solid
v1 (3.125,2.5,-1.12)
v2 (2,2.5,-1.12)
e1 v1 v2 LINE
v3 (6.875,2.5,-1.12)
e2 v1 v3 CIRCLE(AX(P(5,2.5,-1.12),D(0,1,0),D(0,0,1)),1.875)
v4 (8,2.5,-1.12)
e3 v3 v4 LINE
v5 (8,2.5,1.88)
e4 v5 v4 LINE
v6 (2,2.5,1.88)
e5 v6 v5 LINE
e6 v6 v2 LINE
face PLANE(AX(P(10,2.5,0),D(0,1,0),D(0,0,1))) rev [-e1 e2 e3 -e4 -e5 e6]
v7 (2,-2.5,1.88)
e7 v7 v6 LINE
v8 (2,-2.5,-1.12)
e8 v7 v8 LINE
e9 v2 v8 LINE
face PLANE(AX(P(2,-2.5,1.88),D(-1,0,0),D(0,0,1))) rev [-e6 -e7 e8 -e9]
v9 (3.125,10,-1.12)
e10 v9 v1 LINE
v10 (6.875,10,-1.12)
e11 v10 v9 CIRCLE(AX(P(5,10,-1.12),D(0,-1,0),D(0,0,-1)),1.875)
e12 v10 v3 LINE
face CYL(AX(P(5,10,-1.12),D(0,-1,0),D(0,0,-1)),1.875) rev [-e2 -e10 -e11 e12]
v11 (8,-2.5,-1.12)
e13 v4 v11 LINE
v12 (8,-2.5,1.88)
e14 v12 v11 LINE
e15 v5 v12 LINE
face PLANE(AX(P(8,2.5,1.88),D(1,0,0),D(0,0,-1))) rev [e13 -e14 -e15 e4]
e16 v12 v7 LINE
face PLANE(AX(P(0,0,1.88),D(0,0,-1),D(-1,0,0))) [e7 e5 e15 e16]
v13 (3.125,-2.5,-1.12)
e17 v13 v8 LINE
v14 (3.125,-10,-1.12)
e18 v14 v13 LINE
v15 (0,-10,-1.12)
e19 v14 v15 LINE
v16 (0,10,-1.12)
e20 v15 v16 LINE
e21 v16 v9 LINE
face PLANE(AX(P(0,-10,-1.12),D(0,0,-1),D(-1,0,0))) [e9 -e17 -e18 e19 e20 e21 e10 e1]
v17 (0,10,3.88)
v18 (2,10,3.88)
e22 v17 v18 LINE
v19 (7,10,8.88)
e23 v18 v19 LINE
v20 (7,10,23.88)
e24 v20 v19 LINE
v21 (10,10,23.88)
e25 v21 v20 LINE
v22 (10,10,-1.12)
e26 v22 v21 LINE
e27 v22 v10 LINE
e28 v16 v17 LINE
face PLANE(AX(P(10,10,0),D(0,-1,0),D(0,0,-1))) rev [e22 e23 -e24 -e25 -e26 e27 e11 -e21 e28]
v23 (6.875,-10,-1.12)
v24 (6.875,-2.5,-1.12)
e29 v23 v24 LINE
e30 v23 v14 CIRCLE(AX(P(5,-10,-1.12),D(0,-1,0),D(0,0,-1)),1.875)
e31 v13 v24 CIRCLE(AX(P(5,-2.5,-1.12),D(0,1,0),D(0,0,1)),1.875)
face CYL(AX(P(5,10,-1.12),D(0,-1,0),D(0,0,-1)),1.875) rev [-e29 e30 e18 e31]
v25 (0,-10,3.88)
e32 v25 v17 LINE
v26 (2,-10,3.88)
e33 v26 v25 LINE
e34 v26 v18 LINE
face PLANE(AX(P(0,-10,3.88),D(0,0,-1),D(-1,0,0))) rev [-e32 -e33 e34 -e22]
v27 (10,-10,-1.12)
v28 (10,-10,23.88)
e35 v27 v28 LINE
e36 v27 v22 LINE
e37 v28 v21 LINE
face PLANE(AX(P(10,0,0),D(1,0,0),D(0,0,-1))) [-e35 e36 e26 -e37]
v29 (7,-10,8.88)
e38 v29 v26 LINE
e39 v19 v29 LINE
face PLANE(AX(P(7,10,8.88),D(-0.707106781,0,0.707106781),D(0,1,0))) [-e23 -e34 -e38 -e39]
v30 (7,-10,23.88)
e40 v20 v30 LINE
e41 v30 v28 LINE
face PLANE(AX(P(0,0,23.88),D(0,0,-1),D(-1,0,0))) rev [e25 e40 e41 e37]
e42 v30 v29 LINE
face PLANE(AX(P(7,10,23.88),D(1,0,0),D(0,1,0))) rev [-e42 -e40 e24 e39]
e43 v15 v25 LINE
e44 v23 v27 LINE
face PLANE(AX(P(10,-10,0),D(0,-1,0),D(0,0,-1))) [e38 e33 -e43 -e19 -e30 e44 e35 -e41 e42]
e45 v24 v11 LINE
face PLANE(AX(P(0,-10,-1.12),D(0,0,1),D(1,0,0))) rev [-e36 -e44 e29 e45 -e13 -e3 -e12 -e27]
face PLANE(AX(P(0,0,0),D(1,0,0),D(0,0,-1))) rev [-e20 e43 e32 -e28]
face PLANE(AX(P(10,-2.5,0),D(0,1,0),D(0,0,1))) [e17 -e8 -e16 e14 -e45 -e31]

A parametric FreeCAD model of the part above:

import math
import FreeCAD as App
import Part
import Sketcher

V = App.Vector
Q = App.Units.Quantity


def edges_at(feature, points):
    """Names of the edges that pass closest to the given points."""
    edges = feature.Shape.Edges
    near = lambda p: min(range(len(edges)), key=lambda i: edges[i].distToShape(Part.Vertex(*p))[0])
    return sorted({f"Edge{near(p) + 1}" for p in points})


def add_polygon(sketch, points):
    """Adds a closed chain of lines whose ends are joined by coincident constraints."""
    first, n = sketch.GeometryCount, len(points)
    for a, b in zip(points, points[1:] + points[:1]):
        sketch.addGeometry(Part.LineSegment(App.Vector(*a, 0), App.Vector(*b, 0)), False)
    for i in range(n):
        sketch.addConstraint(Sketcher.Constraint("Coincident", first + i, 2, first + (i + 1) % n, 1))

doc = App.newDocument("Part")
params = doc.addObject("Spreadsheet::Sheet", "Params")
for row, (alias, value) in enumerate([
    ("sketch1_width", "6 mm"),
    ("sketch1_width2", "5 mm"),
    ("sketch1_width3", "20 mm"),
    ("sketch1_height", "15 mm"),
    ("sketch1_width4", "2.5 mm"),
    ("pad1_length", "10 mm"),
    ("sketch2_width", "6 mm"),
    ("sketch2_height", "5 mm"),
    ("pocket1_length", "4.88 mm"),
    ("sketch3_diameter", "3.75 mm"),
    ("sketch4_width", "10 mm"),
    ("sketch4_height", "5 mm"),
    ("sketch5_width", "3 mm"),
    ("sketch5_height", "20 mm"),
    ("pad2_length", "20 mm"),
    ("chamfer_size", "5 mm"),
], start=1):
    params.set(f"A{row}", alias)
    params.set(f"B{row}", "=" + value)
    params.setAlias(f"B{row}", alias)

body = doc.addObject("PartDesign::Body", "Body")

# Sketch on YZ plane
sketch1 = body.newObject("Sketcher::SketchObject", "Sketch")
sketch1.AttachmentSupport = (doc.getObject("YZ_Plane"), [""])
sketch1.MapMode = "FlatFace"
add_polygon(sketch1, [(-10, -7.5), (-4, -7.5), (-5, -5.5), (-2.5, -5.5), (-2.5, -3), (2.5, -3), (2.5, -5.5), (5, -5.5), (4, -7.5), (10, -7.5), (10, 7.5), (-10, 7.5)])  # lines 0-11
sketch1.addConstraint(Sketcher.Constraint("Horizontal", 0))
sketch1.addConstraint(Sketcher.Constraint("Horizontal", 2))
sketch1.addConstraint(Sketcher.Constraint("Vertical", 3))
sketch1.addConstraint(Sketcher.Constraint("Horizontal", 4))
sketch1.addConstraint(Sketcher.Constraint("Vertical", 5))
sketch1.addConstraint(Sketcher.Constraint("Horizontal", 6))
sketch1.addConstraint(Sketcher.Constraint("Horizontal", 8))
sketch1.addConstraint(Sketcher.Constraint("Vertical", 9))
sketch1.addConstraint(Sketcher.Constraint("Horizontal", 10))
sketch1.addConstraint(Sketcher.Constraint("Vertical", 11))
sketch1.addConstraint(Sketcher.Constraint("Symmetric", 8, 2, 10, 2, -1, 1))
sketch1.addConstraint(Sketcher.Constraint("Symmetric", 2, 2, 5, 2, -2))
sketch1.addConstraint(Sketcher.Constraint("Symmetric", 0, 2, 7, 2, -2))
sketch1.addConstraint(Sketcher.Constraint("Equal", 2, 6))
sketch1.addConstraint(Sketcher.Constraint("Equal", 6, 3))
sketch1.addConstraint(Sketcher.Constraint("DistanceX", 0, 1, 0, 2, Q("6 mm")))
sketch1.addConstraint(Sketcher.Constraint("DistanceX", 4, 1, 4, 2, Q("5 mm")))
sketch1.addConstraint(Sketcher.Constraint("DistanceX", 10, 2, 10, 1, Q("20 mm")))
sketch1.addConstraint(Sketcher.Constraint("DistanceY", 9, 1, 9, 2, Q("15 mm")))
sketch1.addConstraint(Sketcher.Constraint("DistanceX", 2, 1, 2, 2, Q("2.5 mm")))
sketch1.addConstraint(Sketcher.Constraint("DistanceY", 3, 2, -1, 1, Q("3 mm")))
sketch1.setExpression("Constraints[27]", "Params.sketch1_width")
sketch1.setExpression("Constraints[28]", "Params.sketch1_width2")
sketch1.setExpression("Constraints[29]", "Params.sketch1_width3")
sketch1.setExpression("Constraints[30]", "Params.sketch1_height")
sketch1.setExpression("Constraints[31]", "Params.sketch1_width4")
pad1 = body.newObject("PartDesign::Pad", "Pad")
pad1.Profile = sketch1
pad1.setExpression("Length", "Params.pad1_length")

# Sketch on XY plane
sketch2 = body.newObject("Sketcher::SketchObject", "Sketch001")
sketch2.AttachmentSupport = (doc.getObject("XY_Plane"), [""])
sketch2.MapMode = "FlatFace"
sketch2.AttachmentOffset = App.Placement(V(0, 0, -3), App.Rotation())
add_polygon(sketch2, [(2, -2), (2, 2), (8, 2), (8, -2)])  # lines 0-3
sketch2.addConstraint(Sketcher.Constraint("Vertical", 0))
sketch2.addConstraint(Sketcher.Constraint("Horizontal", 1))
sketch2.addConstraint(Sketcher.Constraint("Vertical", 2))
sketch2.addConstraint(Sketcher.Constraint("Horizontal", 3))
sketch2.addConstraint(Sketcher.Constraint("DistanceX", 1, 1, 1, 2, Q("6 mm")))
sketch2.addConstraint(Sketcher.Constraint("DistanceY", 0, 1, 0, 2, Q("5 mm")))
sketch2.addConstraint(Sketcher.Constraint("DistanceX", -1, 1, 0, 2, Q("2 mm")))
sketch2.addConstraint(Sketcher.Constraint("DistanceY", -1, 1, 0, 2, Q("2.5 mm")))
sketch2.setExpression("Constraints[8]", "Params.sketch2_width")
sketch2.setExpression("Constraints[9]", "Params.sketch2_height")
pocket1 = body.newObject("PartDesign::Pocket", "Pocket")
pocket1.Profile = sketch2
pocket1.setExpression("Length", "Params.pocket1_length")
pocket1.Reversed = True

# Sketch on XZ plane
sketch3 = body.newObject("Sketcher::SketchObject", "Sketch002")
sketch3.AttachmentSupport = (doc.getObject("XZ_Plane"), [""])
sketch3.MapMode = "FlatFace"
sketch3.AttachmentOffset = App.Placement(V(0, 0, -2.5), App.Rotation())
sketch3.addGeometry(Part.Circle(V(5, -1.1, 0), V(0, 0, 1), 1.9), False)
sketch3.addConstraint(Sketcher.Constraint("Diameter", 0, Q("3.75 mm")))
sketch3.addConstraint(Sketcher.Constraint("DistanceX", -1, 1, 0, 3, Q("5 mm")))
sketch3.addConstraint(Sketcher.Constraint("DistanceY", 0, 3, -1, 1, Q("1.12 mm")))
sketch3.setExpression("Constraints[0]", "Params.sketch3_diameter")
pocket2 = body.newObject("PartDesign::Pocket", "Pocket001")
pocket2.Profile = sketch3
pocket2.Type = "ThroughAll"
pocket2.Midplane = True

# Sketch on XZ plane
sketch4 = body.newObject("Sketcher::SketchObject", "Sketch003")
sketch4.AttachmentSupport = (doc.getObject("XZ_Plane"), [""])
sketch4.MapMode = "FlatFace"
sketch4.AttachmentOffset = App.Placement(V(0, 0, -10), App.Rotation())
add_polygon(sketch4, [(13.7, 11.2), (13.7, -11.2), (-3.7, -11.2), (-3.7, 11.2)])  # lines 0-3
sketch4.addGeometry(Part.LineSegment(V(6.9, -1.1, 0), V(10, -1.1, 0)), False)  # 4
sketch4.addGeometry(Part.LineSegment(V(10, -1.1, 0), V(10, 3.9, 0)), False)  # 5
sketch4.addGeometry(Part.LineSegment(V(10, 3.9, 0), V(0, 3.9, 0)), False)  # 6
sketch4.addGeometry(Part.LineSegment(V(0, 3.9, 0), V(0, -1.1, 0)), False)  # 7
sketch4.addGeometry(Part.LineSegment(V(0, -1.1, 0), V(3.1, -1.1, 0)), False)  # 8
sketch4.addGeometry(Part.ArcOfCircle(Part.Circle(V(5, -1.1, 0), V(0, 0, 1), 1.9), math.radians(0), math.radians(180)), False)  # 9
sketch4.addConstraint(Sketcher.Constraint("Coincident", 4, 2, 5, 1))
sketch4.addConstraint(Sketcher.Constraint("Coincident", 5, 2, 6, 1))
sketch4.addConstraint(Sketcher.Constraint("Coincident", 6, 2, 7, 1))
sketch4.addConstraint(Sketcher.Constraint("Coincident", 7, 2, 8, 1))
sketch4.addConstraint(Sketcher.Constraint("Coincident", 8, 2, 9, 2))
sketch4.addConstraint(Sketcher.Constraint("Coincident", 9, 1, 4, 1))
sketch4.addConstraint(Sketcher.Constraint("Vertical", 0))
sketch4.addConstraint(Sketcher.Constraint("Horizontal", 1))
sketch4.addConstraint(Sketcher.Constraint("Vertical", 2))
sketch4.addConstraint(Sketcher.Constraint("Horizontal", 3))
sketch4.addConstraint(Sketcher.Constraint("Horizontal", 4))
sketch4.addConstraint(Sketcher.Constraint("Vertical", 5))
sketch4.addConstraint(Sketcher.Constraint("Horizontal", 6))
sketch4.addConstraint(Sketcher.Constraint("Vertical", 7))
sketch4.addConstraint(Sketcher.Constraint("Horizontal", 8))
sketch4.addConstraint(Sketcher.Constraint("PointOnObject", 6, 2, -2))
sketch4.addConstraint(Sketcher.Constraint("Horizontal", 9, 3, 4, 2))
sketch4.addConstraint(Sketcher.Constraint("Horizontal", 4, 2, 7, 2))
sketch4.addConstraint(Sketcher.Constraint("Equal", 4, 8))
sketch4.addConstraint(Sketcher.Constraint("DistanceX", 6, 2, 6, 1, Q("10 mm")))
sketch4.addConstraint(Sketcher.Constraint("DistanceY", 5, 1, 5, 2, Q("5 mm")))
sketch4.addConstraint(Sketcher.Constraint("Radius", 9, Q("1.875 mm")))
sketch4.addConstraint(Sketcher.Constraint("DistanceX", 1, 2, 1, 1, Q("17.386 mm")))
sketch4.addConstraint(Sketcher.Constraint("DistanceY", 0, 2, 0, 1, Q("22.386 mm")))
sketch4.addConstraint(Sketcher.Constraint("DistanceY", 9, 3, -1, 1, Q("1.12 mm")))
sketch4.addConstraint(Sketcher.Constraint("DistanceX", -1, 1, 0, 2, Q("13.693 mm")))
sketch4.addConstraint(Sketcher.Constraint("DistanceY", 0, 2, -1, 1, Q("11.193 mm")))
sketch4.setExpression("Constraints[23]", "Params.sketch4_width")
sketch4.setExpression("Constraints[24]", "Params.sketch4_height")
pocket3 = body.newObject("PartDesign::Pocket", "Pocket002")
pocket3.Profile = sketch4
pocket3.Type = "ThroughAll"
pocket3.Midplane = True

# Sketch on XY plane
sketch5 = body.newObject("Sketcher::SketchObject", "Sketch004")
sketch5.AttachmentSupport = (doc.getObject("XY_Plane"), [""])
sketch5.MapMode = "FlatFace"
sketch5.AttachmentOffset = App.Placement(V(0, 0, 3.88), App.Rotation())
add_polygon(sketch5, [(7, 10), (7, -10), (10, -10), (10, 10)])  # lines 0-3
sketch5.addConstraint(Sketcher.Constraint("Vertical", 0))
sketch5.addConstraint(Sketcher.Constraint("Horizontal", 1))
sketch5.addConstraint(Sketcher.Constraint("Vertical", 2))
sketch5.addConstraint(Sketcher.Constraint("Horizontal", 3))
sketch5.addConstraint(Sketcher.Constraint("DistanceX", 1, 1, 1, 2, Q("3 mm")))
sketch5.addConstraint(Sketcher.Constraint("DistanceY", 0, 2, 0, 1, Q("20 mm")))
sketch5.addConstraint(Sketcher.Constraint("DistanceX", -1, 1, 0, 2, Q("7 mm")))
sketch5.addConstraint(Sketcher.Constraint("DistanceY", 0, 2, -1, 1, Q("10 mm")))
sketch5.setExpression("Constraints[8]", "Params.sketch5_width")
sketch5.setExpression("Constraints[9]", "Params.sketch5_height")
pad2 = body.newObject("PartDesign::Pad", "Pad001")
pad2.Profile = sketch5
pad2.setExpression("Length", "Params.pad2_length")
doc.recompute()

chamfer = body.newObject("PartDesign::Chamfer", "Chamfer")
chamfer.Base = (pad2, edges_at(pad2, [(7, 0, 3.88)]))
chamfer.setExpression("Size", "Params.chamfer_size")

doc.recompute()
